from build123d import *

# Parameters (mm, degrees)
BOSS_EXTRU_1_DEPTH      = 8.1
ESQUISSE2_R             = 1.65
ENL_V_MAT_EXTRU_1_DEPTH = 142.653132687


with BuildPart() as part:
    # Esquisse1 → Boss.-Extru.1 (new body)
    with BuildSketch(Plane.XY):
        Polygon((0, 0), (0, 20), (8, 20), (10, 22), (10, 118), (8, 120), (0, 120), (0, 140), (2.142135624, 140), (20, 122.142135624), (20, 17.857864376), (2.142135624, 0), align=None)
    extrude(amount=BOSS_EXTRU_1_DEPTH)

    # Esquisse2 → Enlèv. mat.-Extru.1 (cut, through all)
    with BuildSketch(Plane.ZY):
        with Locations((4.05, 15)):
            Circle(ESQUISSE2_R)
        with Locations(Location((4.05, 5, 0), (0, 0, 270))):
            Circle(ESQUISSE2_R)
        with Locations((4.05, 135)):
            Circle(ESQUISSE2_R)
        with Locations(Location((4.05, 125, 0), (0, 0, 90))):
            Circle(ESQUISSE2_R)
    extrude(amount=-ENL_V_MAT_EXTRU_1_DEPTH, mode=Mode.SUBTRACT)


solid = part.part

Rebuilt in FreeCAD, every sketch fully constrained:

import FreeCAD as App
import Part
import Sketcher

V = App.Vector
Q = App.Units.Quantity


def add_polygon(sketch, points):
    """Adds a closed chain of lines whose ends are joined by coincident constraints."""
    first, n = sketch.GeometryCount, len(points)
    for a, b in zip(points, points[1:] + points[:1]):
        sketch.addGeometry(Part.LineSegment(App.Vector(*a, 0), App.Vector(*b, 0)), False)
    for i in range(n):
        sketch.addConstraint(Sketcher.Constraint("Coincident", first + i, 2, first + (i + 1) % n, 1))

doc = App.newDocument("Part")
body = doc.addObject("PartDesign::Body", "Body")

sketch1 = body.newObject("Sketcher::SketchObject", "Sketch")
sketch1.AttachmentSupport = (doc.getObject("XY_Plane"), [""])
sketch1.MapMode = "FlatFace"
add_polygon(sketch1, [(0, 20), (0, 0), (2.1, 0), (20, 17.9), (20, 122.1), (2.1, 140), (0, 140), (0, 120), (8, 120), (10, 118), (10, 22), (8, 20)])
sketch1.addConstraint(Sketcher.Constraint("Vertical", 0))
sketch1.addConstraint(Sketcher.Constraint("Horizontal", 1))
sketch1.addConstraint(Sketcher.Constraint("Vertical", 3))
sketch1.addConstraint(Sketcher.Constraint("Horizontal", 5))
sketch1.addConstraint(Sketcher.Constraint("Vertical", 6))
sketch1.addConstraint(Sketcher.Constraint("Horizontal", 7))
sketch1.addConstraint(Sketcher.Constraint("Vertical", 9))
sketch1.addConstraint(Sketcher.Constraint("Horizontal", 11))
sketch1.addConstraint(Sketcher.Constraint("Coincident", 0, 2, -1, 1))
sketch1.addConstraint(Sketcher.Constraint("PointOnObject", 5, 2, -2))
sketch1.addConstraint(Sketcher.Constraint("Perpendicular", 2, 4))
sketch1.addConstraint(Sketcher.Constraint("Parallel", 4, 8))
sketch1.addConstraint(Sketcher.Constraint("Perpendicular", 8, 10))
sketch1.addConstraint(Sketcher.Constraint("Vertical", 1, 2, 4, 2))
sketch1.addConstraint(Sketcher.Constraint("Vertical", 7, 2, 10, 2))
sketch1.addConstraint(Sketcher.Constraint("Equal", 0, 6))
sketch1.addConstraint(Sketcher.Constraint("Equal", 2, 4))
sketch1.addConstraint(Sketcher.Constraint("DistanceX", 7, 1, 7, 2, Q("8 mm")))
sketch1.addConstraint(Sketcher.Constraint("DistanceY", 0, 2, 0, 1, Q("20 mm")))
sketch1.addConstraint(Sketcher.Constraint("DistanceY", 9, 2, 9, 1, Q("96 mm")))
sketch1.addConstraint(Sketcher.Constraint("DistanceX", -1, 1, 2, 2, Q("20 mm")))
sketch1.addConstraint(Sketcher.Constraint("DistanceY", -1, 1, 4, 2, Q("140 mm")))
sketch1.addConstraint(Sketcher.Constraint("DistanceY", 3, 1, 3, 2, Q("104.284271 mm")))
pad1 = body.newObject("PartDesign::Pad", "Pad")
pad1.Profile = sketch1
pad1.Length = 8.1

sketch2 = body.newObject("Sketcher::SketchObject", "Sketch001")
sketch2.AttachmentSupport = (doc.getObject("YZ_Plane"), [""])
sketch2.MapMode = "FlatFace"
sketch2.addGeometry(Part.Circle(V(15, 4, 0), V(0, 0, 1), 1.6), False)
sketch2.addGeometry(Part.Circle(V(5, 4, 0), V(0, 0, 1), 1.6), False)
sketch2.addGeometry(Part.Circle(V(135, 4, 0), V(0, 0, 1), 1.6), False)
sketch2.addGeometry(Part.Circle(V(125, 4, 0), V(0, 0, 1), 1.6), False)
sketch2.addConstraint(Sketcher.Constraint("Equal", 0, 1))
sketch2.addConstraint(Sketcher.Constraint("Equal", 1, 2))
sketch2.addConstraint(Sketcher.Constraint("Equal", 2, 3))
sketch2.addConstraint(Sketcher.Constraint("Horizontal", 0, 3, 1, 3))
sketch2.addConstraint(Sketcher.Constraint("Horizontal", 1, 3, 2, 3))
sketch2.addConstraint(Sketcher.Constraint("Horizontal", 2, 3, 3, 3))
sketch2.addConstraint(Sketcher.Constraint("Diameter", 0, Q("3.3 mm")))
sketch2.addConstraint(Sketcher.Constraint("DistanceX", -1, 1, 0, 3, Q("15 mm")))
sketch2.addConstraint(Sketcher.Constraint("DistanceX", -1, 1, 1, 3, Q("5 mm")))
sketch2.addConstraint(Sketcher.Constraint("DistanceX", -1, 1, 2, 3, Q("135 mm")))
sketch2.addConstraint(Sketcher.Constraint("DistanceX", -1, 1, 3, 3, Q("125 mm")))
sketch2.addConstraint(Sketcher.Constraint("DistanceY", -1, 1, 0, 3, Q("4.05 mm")))
pocket1 = body.newObject("PartDesign::Pocket", "Pocket")
pocket1.Profile = sketch2
pocket1.Type = "ThroughAll"
pocket1.Reversed = True

doc.recompute()
